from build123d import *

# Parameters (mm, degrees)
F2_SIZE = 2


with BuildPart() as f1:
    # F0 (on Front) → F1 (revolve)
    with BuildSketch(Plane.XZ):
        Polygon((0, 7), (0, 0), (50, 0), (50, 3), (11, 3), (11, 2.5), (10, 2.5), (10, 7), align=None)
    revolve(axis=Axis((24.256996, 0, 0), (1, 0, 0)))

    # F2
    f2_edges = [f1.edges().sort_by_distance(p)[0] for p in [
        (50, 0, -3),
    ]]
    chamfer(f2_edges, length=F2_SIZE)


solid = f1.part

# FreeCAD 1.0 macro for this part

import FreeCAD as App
import Part
import Sketcher
from FreeCAD import Vector


def edges_at(feature, points):
    """Names of the edges that pass closest to the given points."""
    edges = feature.Shape.Edges
    near = lambda p: min(range(len(edges)), key=lambda i: edges[i].distToShape(Part.Vertex(*p))[0])
    return sorted({f"Edge{near(p) + 1}" for p in points})


def add_polygon(sketch, points):
    """Adds a closed chain of lines whose ends are joined by coincident constraints."""
    first, n = sketch.GeometryCount, len(points)
    for a, b in zip(points, points[1:] + points[:1]):
        sketch.addGeometry(Part.LineSegment(App.Vector(*a, 0), App.Vector(*b, 0)), False)
    for i in range(n):
        sketch.addConstraint(Sketcher.Constraint("Coincident", first + i, 2, first + (i + 1) % n, 1))

doc = App.newDocument("Part")
params = doc.addObject("Spreadsheet::Sheet", "Params")
for row, (alias, value) in enumerate([
    ("sketch1_width", "50 mm"),
    ("sketch1_width2", "39 mm"),
    ("sketch1_width3", "1 mm"),
    ("sketch1_height", "7 mm"),
    ("sketch1_height2", "3 mm"),
    ("revolution_angle", "360 deg"),
    ("chamfer_size", "2 mm"),
], start=1):
    params.set(f"A{row}", alias)
    params.set(f"B{row}", "=" + value)
    params.setAlias(f"B{row}", alias)

body = doc.addObject("PartDesign::Body", "Body")

sketch1 = doc.addObject("Sketcher::SketchObject", "Sketch")
body.addObject(sketch1)
sketch1.AttachmentSupport = (doc.XZ_Plane, [""])
sketch1.MapMode = "FlatFace"
add_polygon(sketch1, [(0, 7), (0, 0), (50, 0), (50, 3), (11, 3), (11, 2.5), (10, 2.5), (10, 7)])
sketch1.addConstraint([
    Sketcher.Constraint("Vertical", 0),
    Sketcher.Constraint("Horizontal", 1),
    Sketcher.Constraint("Vertical", 2),
    Sketcher.Constraint("Horizontal", 3),
    Sketcher.Constraint("Vertical", 4),
    Sketcher.Constraint("Horizontal", 5),
    Sketcher.Constraint("Vertical", 6),
    Sketcher.Constraint("Horizontal", 7),
    Sketcher.Constraint("Coincident", 0, 2, -1, 1),
    Sketcher.Constraint("DistanceX", 1, 1, 1, 2, 50.0),
    Sketcher.Constraint("DistanceX", 3, 2, 3, 1, 39.0),
    Sketcher.Constraint("DistanceX", 5, 2, 5, 1, 1.0),
    Sketcher.Constraint("DistanceY", 0, 2, 0, 1, 7.0),
    Sketcher.Constraint("DistanceY", 2, 1, 2, 2, 3.0),
    Sketcher.Constraint("DistanceY", 4, 2, 4, 1, 0.5),
])
sketch1.setExpression("Constraints[17]", "Params.sketch1_width")
sketch1.setExpression("Constraints[18]", "Params.sketch1_width2")
sketch1.setExpression("Constraints[19]", "Params.sketch1_width3")
sketch1.setExpression("Constraints[20]", "Params.sketch1_height")
sketch1.setExpression("Constraints[21]", "Params.sketch1_height2")
revolution = doc.addObject("PartDesign::Revolution", "Revolution")
body.addObject(revolution)
revolution.Profile = sketch1
revolution.ReferenceAxis = (sketch1, ["H_Axis"])
revolution.setExpression("Angle", "Params.revolution_angle")
doc.recompute()

chamfer = doc.addObject("PartDesign::Chamfer", "Chamfer")
body.addObject(chamfer)
chamfer.Base = (revolution, edges_at(revolution, [(50, 0, -3)]))
chamfer.setExpression("Size", "Params.chamfer_size")

doc.recompute()
